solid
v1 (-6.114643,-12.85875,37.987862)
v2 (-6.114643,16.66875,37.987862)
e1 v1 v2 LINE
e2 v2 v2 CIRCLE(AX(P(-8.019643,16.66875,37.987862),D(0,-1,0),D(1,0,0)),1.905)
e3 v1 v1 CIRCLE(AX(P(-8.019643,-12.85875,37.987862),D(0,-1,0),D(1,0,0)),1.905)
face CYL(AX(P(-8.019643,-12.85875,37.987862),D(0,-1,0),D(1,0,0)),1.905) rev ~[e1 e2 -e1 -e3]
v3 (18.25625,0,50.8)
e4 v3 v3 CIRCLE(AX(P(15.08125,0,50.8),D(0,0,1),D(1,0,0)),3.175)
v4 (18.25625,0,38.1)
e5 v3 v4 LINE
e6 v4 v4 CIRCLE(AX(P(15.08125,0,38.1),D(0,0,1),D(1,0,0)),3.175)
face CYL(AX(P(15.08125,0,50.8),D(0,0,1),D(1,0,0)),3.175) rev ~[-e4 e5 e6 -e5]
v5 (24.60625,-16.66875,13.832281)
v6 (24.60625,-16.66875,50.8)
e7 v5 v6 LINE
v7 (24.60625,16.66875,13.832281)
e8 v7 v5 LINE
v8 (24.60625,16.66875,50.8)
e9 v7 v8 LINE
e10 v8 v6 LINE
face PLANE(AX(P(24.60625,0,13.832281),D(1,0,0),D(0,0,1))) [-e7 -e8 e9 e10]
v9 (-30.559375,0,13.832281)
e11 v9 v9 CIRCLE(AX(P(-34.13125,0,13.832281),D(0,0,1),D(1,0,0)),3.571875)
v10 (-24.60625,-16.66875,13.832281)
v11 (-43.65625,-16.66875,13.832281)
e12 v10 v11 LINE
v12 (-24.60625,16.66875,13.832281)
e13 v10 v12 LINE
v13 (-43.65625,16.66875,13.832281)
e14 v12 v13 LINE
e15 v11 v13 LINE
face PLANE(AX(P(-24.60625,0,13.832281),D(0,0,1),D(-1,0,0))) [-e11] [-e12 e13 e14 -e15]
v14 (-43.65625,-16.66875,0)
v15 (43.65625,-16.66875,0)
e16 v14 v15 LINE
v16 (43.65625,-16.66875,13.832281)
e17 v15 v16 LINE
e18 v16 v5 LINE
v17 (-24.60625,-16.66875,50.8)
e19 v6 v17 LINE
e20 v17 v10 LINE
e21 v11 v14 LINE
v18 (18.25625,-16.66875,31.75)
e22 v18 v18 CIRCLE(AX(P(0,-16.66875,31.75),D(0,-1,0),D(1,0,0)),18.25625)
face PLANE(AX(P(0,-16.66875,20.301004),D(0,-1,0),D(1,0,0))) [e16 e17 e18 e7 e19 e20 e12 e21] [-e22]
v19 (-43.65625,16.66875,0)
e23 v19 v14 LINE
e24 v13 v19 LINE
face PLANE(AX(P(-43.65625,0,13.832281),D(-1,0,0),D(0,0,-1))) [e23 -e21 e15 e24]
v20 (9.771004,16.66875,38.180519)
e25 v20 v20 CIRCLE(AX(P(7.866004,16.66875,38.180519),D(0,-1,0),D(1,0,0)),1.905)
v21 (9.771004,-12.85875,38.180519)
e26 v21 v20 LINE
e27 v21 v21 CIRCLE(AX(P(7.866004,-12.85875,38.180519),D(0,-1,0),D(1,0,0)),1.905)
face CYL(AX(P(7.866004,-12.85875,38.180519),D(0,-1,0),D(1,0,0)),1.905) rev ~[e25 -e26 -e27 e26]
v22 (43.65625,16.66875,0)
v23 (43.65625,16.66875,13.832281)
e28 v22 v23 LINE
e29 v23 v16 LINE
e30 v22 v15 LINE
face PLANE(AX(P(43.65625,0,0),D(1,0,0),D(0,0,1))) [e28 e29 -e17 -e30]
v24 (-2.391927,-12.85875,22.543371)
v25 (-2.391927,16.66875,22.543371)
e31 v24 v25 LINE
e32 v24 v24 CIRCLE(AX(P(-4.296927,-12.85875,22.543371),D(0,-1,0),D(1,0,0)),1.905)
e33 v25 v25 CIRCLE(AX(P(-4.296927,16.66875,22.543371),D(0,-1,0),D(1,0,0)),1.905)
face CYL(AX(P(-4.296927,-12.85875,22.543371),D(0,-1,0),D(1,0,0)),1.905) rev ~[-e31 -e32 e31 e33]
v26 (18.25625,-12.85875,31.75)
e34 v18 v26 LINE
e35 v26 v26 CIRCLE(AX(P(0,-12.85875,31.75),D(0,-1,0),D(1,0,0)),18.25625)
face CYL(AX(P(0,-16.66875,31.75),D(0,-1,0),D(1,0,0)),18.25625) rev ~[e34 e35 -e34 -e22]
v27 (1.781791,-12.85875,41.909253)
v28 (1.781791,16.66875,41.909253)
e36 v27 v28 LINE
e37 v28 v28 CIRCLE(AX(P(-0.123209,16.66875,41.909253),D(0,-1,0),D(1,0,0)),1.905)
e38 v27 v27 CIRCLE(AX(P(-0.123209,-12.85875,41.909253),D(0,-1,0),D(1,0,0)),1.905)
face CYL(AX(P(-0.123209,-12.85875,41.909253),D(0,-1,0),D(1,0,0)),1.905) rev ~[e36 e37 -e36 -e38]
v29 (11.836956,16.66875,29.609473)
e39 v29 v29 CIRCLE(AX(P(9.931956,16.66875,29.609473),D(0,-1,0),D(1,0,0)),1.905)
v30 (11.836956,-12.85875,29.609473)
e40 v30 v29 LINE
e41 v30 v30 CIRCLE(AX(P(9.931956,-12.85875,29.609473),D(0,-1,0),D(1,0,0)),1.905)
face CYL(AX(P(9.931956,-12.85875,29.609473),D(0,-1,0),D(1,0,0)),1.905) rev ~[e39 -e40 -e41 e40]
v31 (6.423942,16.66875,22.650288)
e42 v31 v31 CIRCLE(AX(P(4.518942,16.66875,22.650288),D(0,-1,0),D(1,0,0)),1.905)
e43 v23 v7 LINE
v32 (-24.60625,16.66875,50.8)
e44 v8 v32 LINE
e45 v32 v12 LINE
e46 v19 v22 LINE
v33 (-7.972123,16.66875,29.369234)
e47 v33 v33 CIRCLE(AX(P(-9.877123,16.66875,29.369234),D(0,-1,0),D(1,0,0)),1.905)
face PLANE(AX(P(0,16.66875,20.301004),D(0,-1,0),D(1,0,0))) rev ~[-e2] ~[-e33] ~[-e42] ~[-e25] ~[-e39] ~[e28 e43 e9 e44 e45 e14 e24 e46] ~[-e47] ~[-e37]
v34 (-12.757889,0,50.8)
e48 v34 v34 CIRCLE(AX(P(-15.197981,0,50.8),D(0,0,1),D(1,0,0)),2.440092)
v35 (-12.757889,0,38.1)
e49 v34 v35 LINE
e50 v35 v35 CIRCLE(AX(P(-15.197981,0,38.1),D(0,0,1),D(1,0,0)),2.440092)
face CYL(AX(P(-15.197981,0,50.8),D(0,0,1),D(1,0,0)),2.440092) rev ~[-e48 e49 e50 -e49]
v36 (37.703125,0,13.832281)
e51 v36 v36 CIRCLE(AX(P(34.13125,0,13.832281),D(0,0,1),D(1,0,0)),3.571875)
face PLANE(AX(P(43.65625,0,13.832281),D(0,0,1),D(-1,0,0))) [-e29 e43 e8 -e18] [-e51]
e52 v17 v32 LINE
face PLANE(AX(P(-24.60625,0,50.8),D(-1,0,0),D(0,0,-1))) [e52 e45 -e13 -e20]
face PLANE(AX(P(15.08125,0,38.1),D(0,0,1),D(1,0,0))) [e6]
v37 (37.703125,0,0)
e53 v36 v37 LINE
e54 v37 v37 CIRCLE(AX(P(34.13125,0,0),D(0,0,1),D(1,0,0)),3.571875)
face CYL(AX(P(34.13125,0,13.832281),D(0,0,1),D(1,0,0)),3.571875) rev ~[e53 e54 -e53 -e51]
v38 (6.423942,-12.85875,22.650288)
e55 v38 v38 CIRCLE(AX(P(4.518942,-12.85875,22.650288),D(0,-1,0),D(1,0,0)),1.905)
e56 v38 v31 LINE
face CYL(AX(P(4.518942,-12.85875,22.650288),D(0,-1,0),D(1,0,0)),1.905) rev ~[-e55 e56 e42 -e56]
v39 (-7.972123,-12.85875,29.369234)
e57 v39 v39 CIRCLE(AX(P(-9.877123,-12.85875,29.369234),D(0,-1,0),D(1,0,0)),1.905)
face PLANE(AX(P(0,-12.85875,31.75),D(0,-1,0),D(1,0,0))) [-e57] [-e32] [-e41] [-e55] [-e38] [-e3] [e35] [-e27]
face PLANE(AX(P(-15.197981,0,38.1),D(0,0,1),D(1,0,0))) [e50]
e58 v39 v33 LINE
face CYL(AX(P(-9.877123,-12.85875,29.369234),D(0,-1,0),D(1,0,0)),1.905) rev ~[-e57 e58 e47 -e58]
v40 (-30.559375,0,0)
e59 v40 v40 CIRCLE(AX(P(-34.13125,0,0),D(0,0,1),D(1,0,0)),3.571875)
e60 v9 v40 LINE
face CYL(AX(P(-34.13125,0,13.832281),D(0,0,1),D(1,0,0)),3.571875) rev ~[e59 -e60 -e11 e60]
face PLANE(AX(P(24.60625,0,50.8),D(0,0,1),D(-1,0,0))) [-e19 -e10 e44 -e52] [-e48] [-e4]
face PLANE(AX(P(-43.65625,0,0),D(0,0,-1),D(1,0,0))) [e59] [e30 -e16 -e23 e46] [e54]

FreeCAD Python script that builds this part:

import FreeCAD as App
import Part
import Sketcher
from FreeCAD import Vector
Q = App.Units.Quantity

doc = App.newDocument("Part")
body = doc.addObject("PartDesign::Body", "Body")

sketch1 = doc.addObject("Sketcher::SketchObject", "Sketch")
body.addObject(sketch1)
sketch1.AttachmentSupport = (doc.XZ_Plane, [""])
sketch1.MapMode = "FlatFace"
sketch1.addGeometry([
    Part.LineSegment(Vector(-44, 14, 0), Vector(-44, 0, 0)),
    Part.LineSegment(Vector(-44, 0, 0), Vector(44, 0, 0)),
    Part.LineSegment(Vector(44, 0, 0), Vector(44, 14, 0)),
    Part.LineSegment(Vector(44, 14, 0), Vector(25, 14, 0)),
    Part.LineSegment(Vector(25, 14, 0), Vector(25, 51, 0)),
    Part.LineSegment(Vector(25, 51, 0), Vector(-25, 51, 0)),
    Part.LineSegment(Vector(-25, 51, 0), Vector(-25, 14, 0)),
    Part.LineSegment(Vector(-25, 14, 0), Vector(-44, 14, 0)),
], False)
sketch1.addConstraint([
    Sketcher.Constraint("Coincident", 0, 2, 1, 1),
    Sketcher.Constraint("Coincident", 1, 2, 2, 1),
    Sketcher.Constraint("Coincident", 2, 2, 3, 1),
    Sketcher.Constraint("Coincident", 3, 2, 4, 1),
    Sketcher.Constraint("Coincident", 4, 2, 5, 1),
    Sketcher.Constraint("Coincident", 5, 2, 6, 1),
    Sketcher.Constraint("Coincident", 6, 2, 7, 1),
    Sketcher.Constraint("Coincident", 7, 2, 0, 1),
    Sketcher.Constraint("Vertical", 0),
    Sketcher.Constraint("Horizontal", 1),
    Sketcher.Constraint("Vertical", 2),
    Sketcher.Constraint("Horizontal", 3),
    Sketcher.Constraint("Vertical", 4),
    Sketcher.Constraint("Horizontal", 5),
    Sketcher.Constraint("Vertical", 6),
    Sketcher.Constraint("Horizontal", 7),
    Sketcher.Constraint("Symmetric", 0, 2, 1, 2, -1, 1),
    Sketcher.Constraint("Symmetric", 3, 2, 6, 2, -2),
    Sketcher.Constraint("DistanceY", -1, 1, 4, 2, Q("2 in")),
    Sketcher.Constraint("DistanceX", 3, 2, 3, 1, Q("0.75 in")),
    Sketcher.Constraint("DistanceX", 1, 1, 1, 2, Q("3.4375 in")),
    Sketcher.Constraint("DistanceY", 0, 2, 0, 1, Q("13.832281 mm")),
])
pad1 = doc.addObject("PartDesign::Pad", "Pad")
body.addObject(pad1)
pad1.Profile = sketch1
pad1.Length = Q("1.3125 in")
pad1.Midplane = True

sketch2 = doc.addObject("Sketcher::SketchObject", "Sketch001")
body.addObject(sketch2)
sketch2.AttachmentSupport = (doc.XY_Plane, [""])
sketch2.MapMode = "FlatFace"
sketch2.AttachmentOffset = App.Placement(Vector(0, 0, 13.832281), App.Rotation())
sketch2.addGeometry([
    Part.Circle(Vector(-34.1, 0, 0), Vector(0, 0, 1), 3.6),
    Part.Circle(Vector(34.1, 0, 0), Vector(0, 0, 1), 3.6),
], False)
sketch2.addConstraint([
    Sketcher.Constraint("Equal", 0, 1),
    Sketcher.Constraint("Symmetric", 0, 3, 1, 3, -1, 1),
    Sketcher.Constraint("PointOnObject", 0, 3, -1),
    Sketcher.Constraint("Diameter", 0, Q("0.28125 in")),
    Sketcher.Constraint("DistanceX", 0, 3, -1, 1, Q("1.34375 in")),
])
pocket1 = doc.addObject("PartDesign::Pocket", "Pocket")
body.addObject(pocket1)
pocket1.Profile = sketch2
pocket1.Type = "ThroughAll"

sketch3 = doc.addObject("Sketcher::SketchObject", "Sketch002")
body.addObject(sketch3)
sketch3.AttachmentSupport = (doc.XY_Plane, [""])
sketch3.MapMode = "FlatFace"
sketch3.AttachmentOffset = App.Placement(Vector(0, 0, 2 * 25.4), App.Rotation())
sketch3.addGeometry([
    Part.Circle(Vector(15.1, 0, 0), Vector(0, 0, 1), 3.2),
    Part.Circle(Vector(-15.2, 0, 0), Vector(0, 0, 1), 2.4),
], False)
sketch3.addConstraint([
    Sketcher.Constraint("PointOnObject", 0, 3, -1),
    Sketcher.Constraint("PointOnObject", 1, 3, -1),
    Sketcher.Constraint("Diameter", 0, Q("0.25 in")),
    Sketcher.Constraint("DistanceX", -1, 1, 0, 3, Q("0.59375 in")),
    Sketcher.Constraint("Diameter", 1, Q("4.880184 mm")),
    Sketcher.Constraint("DistanceX", 1, 3, -1, 1, Q("15.197981 mm")),
])
pocket2 = doc.addObject("PartDesign::Pocket", "Pocket001")
body.addObject(pocket2)
pocket2.Profile = sketch3
pocket2.Length = Q("0.5 in")

sketch4 = doc.addObject("Sketcher::SketchObject", "Sketch003")
body.addObject(sketch4)
sketch4.AttachmentSupport = (doc.XZ_Plane, [""])
sketch4.MapMode = "FlatFace"
sketch4.AttachmentOffset = App.Placement(Vector(0, 0, 0.65625 * 25.4), App.Rotation())
sketch4.addGeometry(Part.Circle(Vector(0, 32, 0), Vector(0, 0, 1), 18), False)
sketch4.addConstraint([
    Sketcher.Constraint("PointOnObject", 0, 3, -2),
    Sketcher.Constraint("Diameter", 0, Q("1.4375 in")),
    Sketcher.Constraint("DistanceY", -1, 1, 0, 3, Q("1.25 in")),
])
pocket3 = doc.addObject("PartDesign::Pocket", "Pocket002")
body.addObject(pocket3)
pocket3.Profile = sketch4
pocket3.Length = Q("0.15 in")

sketch5 = doc.addObject("Sketcher::SketchObject", "Sketch004")
body.addObject(sketch5)
sketch5.AttachmentSupport = (doc.XZ_Plane, [""])
sketch5.MapMode = "FlatFace"
sketch5.AttachmentOffset = App.Placement(Vector(0, 0, 12.85875), App.Rotation())
sketch5.addGeometry([
    Part.Circle(Vector(-8, 38, 0), Vector(0, 0, 1), 1.9),
    Part.Circle(Vector(-0.1, 41.9, 0), Vector(0, 0, 1), 1.9),
    Part.Circle(Vector(7.9, 38.2, 0), Vector(0, 0, 1), 1.9),
    Part.Circle(Vector(9.9, 29.6, 0), Vector(0, 0, 1), 1.9),
    Part.Circle(Vector(4.5, 22.7, 0), Vector(0, 0, 1), 1.9),
    Part.Circle(Vector(-4.3, 22.5, 0), Vector(0, 0, 1), 1.9),
    Part.Circle(Vector(-9.9, 29.4, 0), Vector(0, 0, 1), 1.9),
], False)
sketch5.addConstraint([
    Sketcher.Constraint("Equal", 0, 1),
    Sketcher.Constraint("Equal", 1, 2),
    Sketcher.Constraint("Equal", 2, 3),
    Sketcher.Constraint("Equal", 3, 4),
    Sketcher.Constraint("Equal", 4, 5),
    Sketcher.Constraint("Equal", 5, 6),
    Sketcher.Constraint("Diameter", 0, Q("0.15 in")),
    Sketcher.Constraint("DistanceX", 0, 3, 3, 3, Q("17.951599 mm")),
    Sketcher.Constraint("DistanceX", 1, 3, -1, 1, Q("0.123209 mm")),
    Sketcher.Constraint("DistanceY", -1, 1, 2, 3, Q("38.180519 mm")),
    Sketcher.Constraint("DistanceY", -1, 1, 4, 3, Q("22.650288 mm")),
    Sketcher.Constraint("DistanceY", -1, 1, 5, 3, Q("22.543371 mm")),
    Sketcher.Constraint("DistanceY", 0, 3, 1, 3, Q("3.921391 mm")),
    Sketcher.Constraint("DistanceX", 2, 3, 3, 3, Q("2.065952 mm")),
    Sketcher.Constraint("DistanceY", 3, 3, 1, 3, Q("12.29978 mm")),
    Sketcher.Constraint("DistanceX", 1, 3, 4, 3, Q("4.642151 mm")),
    Sketcher.Constraint("DistanceX", 5, 3, 4, 3, Q("8.815869 mm")),
    Sketcher.Constraint("DistanceY", 5, 3, 0, 3, Q("15.444491 mm")),
    Sketcher.Constraint("DistanceX", 5, 3, 2, 3, Q("12.162931 mm")),
    Sketcher.Constraint("DistanceX", 6, 3, 0, 3, Q("1.85748 mm")),
    Sketcher.Constraint("DistanceY", 6, 3, 0, 3, Q("8.618628 mm")),
])
pocket4 = doc.addObject("PartDesign::Pocket", "Pocket003")
body.addObject(pocket4)
pocket4.Profile = sketch5
pocket4.Type = "ThroughAll"

doc.recompute()
